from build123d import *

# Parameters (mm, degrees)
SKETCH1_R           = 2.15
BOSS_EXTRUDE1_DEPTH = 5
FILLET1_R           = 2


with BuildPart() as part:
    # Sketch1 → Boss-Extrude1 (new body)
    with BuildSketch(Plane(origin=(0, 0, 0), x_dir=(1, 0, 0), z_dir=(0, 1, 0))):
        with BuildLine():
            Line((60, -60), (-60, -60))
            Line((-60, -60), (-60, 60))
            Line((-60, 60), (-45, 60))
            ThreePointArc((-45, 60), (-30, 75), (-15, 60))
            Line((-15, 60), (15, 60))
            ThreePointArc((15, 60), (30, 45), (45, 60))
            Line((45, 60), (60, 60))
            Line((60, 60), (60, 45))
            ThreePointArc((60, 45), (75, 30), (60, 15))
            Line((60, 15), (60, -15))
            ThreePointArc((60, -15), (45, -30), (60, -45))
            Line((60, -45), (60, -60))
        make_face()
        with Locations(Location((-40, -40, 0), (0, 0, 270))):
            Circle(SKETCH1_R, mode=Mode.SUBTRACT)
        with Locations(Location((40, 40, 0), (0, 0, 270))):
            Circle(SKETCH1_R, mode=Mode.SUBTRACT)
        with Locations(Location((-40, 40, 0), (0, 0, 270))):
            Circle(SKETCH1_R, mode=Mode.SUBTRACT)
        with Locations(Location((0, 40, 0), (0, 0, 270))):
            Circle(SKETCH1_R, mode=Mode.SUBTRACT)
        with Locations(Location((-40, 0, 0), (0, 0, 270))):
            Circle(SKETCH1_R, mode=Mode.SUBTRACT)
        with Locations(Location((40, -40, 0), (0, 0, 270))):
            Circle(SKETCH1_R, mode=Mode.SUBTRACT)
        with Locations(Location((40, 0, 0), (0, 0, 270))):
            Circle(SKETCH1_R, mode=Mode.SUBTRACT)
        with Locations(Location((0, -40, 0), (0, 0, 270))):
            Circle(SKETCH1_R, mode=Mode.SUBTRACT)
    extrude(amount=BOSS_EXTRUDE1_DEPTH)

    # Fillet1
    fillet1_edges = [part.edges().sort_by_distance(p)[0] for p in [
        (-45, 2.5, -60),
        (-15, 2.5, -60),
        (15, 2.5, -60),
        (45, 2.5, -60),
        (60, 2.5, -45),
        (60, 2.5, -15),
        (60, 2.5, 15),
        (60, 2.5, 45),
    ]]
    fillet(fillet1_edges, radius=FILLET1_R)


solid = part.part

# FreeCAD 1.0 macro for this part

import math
import FreeCAD as App
import Part
import Sketcher

V = App.Vector


def edges_at(feature, points):
    """Names of the edges that pass closest to the given points."""
    edges = feature.Shape.Edges
    near = lambda p: min(range(len(edges)), key=lambda i: edges[i].distToShape(Part.Vertex(*p))[0])
    return sorted({f"Edge{near(p) + 1}" for p in points})

doc = App.newDocument("Part")
body = doc.addObject("PartDesign::Body", "Body")

# Sketch on XZ plane
sketch1 = body.newObject("Sketcher::SketchObject", "Sketch")
sketch1.AttachmentSupport = (doc.getObject("XZ_Plane"), [""])
sketch1.MapMode = "FlatFace"
sketch1.addGeometry(Part.LineSegment(V(-60, 60, 0), V(60, 60, 0)), False)
sketch1.addGeometry(Part.LineSegment(V(60, 60, 0), V(60, 45, 0)), False)
sketch1.addGeometry(Part.ArcOfCircle(Part.Circle(V(60, 30, 0), V(0, 0, 1), 15), math.radians(90), math.radians(270)), False)
sketch1.addGeometry(Part.LineSegment(V(60, 15, 0), V(60, -15, 0)), False)
sketch1.addGeometry(Part.ArcOfCircle(Part.Circle(V(60, -30, 0), V(0, 0, 1), 15), math.radians(-90), math.radians(90)), False)
sketch1.addGeometry(Part.LineSegment(V(60, -45, 0), V(60, -60, 0)), False)
sketch1.addGeometry(Part.LineSegment(V(60, -60, 0), V(45, -60, 0)), False)
sketch1.addGeometry(Part.ArcOfCircle(Part.Circle(V(30, -60, 0), V(0, 0, 1), 15), math.radians(0), math.radians(180)), False)
sketch1.addGeometry(Part.LineSegment(V(15, -60, 0), V(-15, -60, 0)), False)
sketch1.addGeometry(Part.ArcOfCircle(Part.Circle(V(-30, -60, 0), V(0, 0, 1), 15), math.radians(180), math.radians(360)), False)
sketch1.addGeometry(Part.LineSegment(V(-45, -60, 0), V(-60, -60, 0)), False)
sketch1.addGeometry(Part.LineSegment(V(-60, -60, 0), V(-60, 60, 0)), False)
sketch1.addGeometry(Part.Circle(V(40, 40, 0), V(0, 0, 1), 2.1), False)
sketch1.addGeometry(Part.Circle(V(0, 40, 0), V(0, 0, 1), 2.1), False)
sketch1.addGeometry(Part.Circle(V(-40, 40, 0), V(0, 0, 1), 2.1), False)
sketch1.addGeometry(Part.Circle(V(40, 0, 0), V(0, 0, 1), 2.1), False)
sketch1.addGeometry(Part.Circle(V(40, -40, 0), V(0, 0, 1), 2.1), False)
sketch1.addGeometry(Part.Circle(V(-40, 0, 0), V(0, 0, 1), 2.1), False)
sketch1.addGeometry(Part.Circle(V(0, -40, 0), V(0, 0, 1), 2.1), False)
sketch1.addGeometry(Part.Circle(V(-40, -40, 0), V(0, 0, 1), 2.1), False)
sketch1.addConstraint(Sketcher.Constraint("Coincident", 0, 2, 1, 1))
sketch1.addConstraint(Sketcher.Constraint("Coincident", 1, 2, 2, 1))
sketch1.addConstraint(Sketcher.Constraint("Coincident", 2, 2, 3, 1))
sketch1.addConstraint(Sketcher.Constraint("Coincident", 3, 2, 4, 2))
sketch1.addConstraint(Sketcher.Constraint("Coincident", 4, 1, 5, 1))
sketch1.addConstraint(Sketcher.Constraint("Coincident", 5, 2, 6, 1))
sketch1.addConstraint(Sketcher.Constraint("Coincident", 6, 2, 7, 1))
sketch1.addConstraint(Sketcher.Constraint("Coincident", 7, 2, 8, 1))
sketch1.addConstraint(Sketcher.Constraint("Coincident", 8, 2, 9, 2))
sketch1.addConstraint(Sketcher.Constraint("Coincident", 9, 1, 10, 1))
sketch1.addConstraint(Sketcher.Constraint("Coincident", 10, 2, 11, 1))
sketch1.addConstraint(Sketcher.Constraint("Coincident", 11, 2, 0, 1))
sketch1.addConstraint(Sketcher.Constraint("Horizontal", 0))
sketch1.addConstraint(Sketcher.Constraint("Vertical", 1))
sketch1.addConstraint(Sketcher.Constraint("Vertical", 3))
sketch1.addConstraint(Sketcher.Constraint("Vertical", 5))
sketch1.addConstraint(Sketcher.Constraint("Horizontal", 6))
sketch1.addConstraint(Sketcher.Constraint("Horizontal", 8))
sketch1.addConstraint(Sketcher.Constraint("Horizontal", 10))
sketch1.addConstraint(Sketcher.Constraint("Vertical", 11))
sketch1.addConstraint(Sketcher.Constraint("Equal", 2, 4))
sketch1.addConstraint(Sketcher.Constraint("Equal", 4, 7))
sketch1.addConstraint(Sketcher.Constraint("Equal", 7, 9))
sketch1.addConstraint(Sketcher.Constraint("Equal", 12, 13))
sketch1.addConstraint(Sketcher.Constraint("Equal", 13, 14))
sketch1.addConstraint(Sketcher.Constraint("Equal", 14, 15))
sketch1.addConstraint(Sketcher.Constraint("Equal", 15, 16))
sketch1.addConstraint(Sketcher.Constraint("Equal", 16, 17))
sketch1.addConstraint(Sketcher.Constraint("Equal", 17, 18))
sketch1.addConstraint(Sketcher.Constraint("Equal", 18, 19))
sketch1.addConstraint(Sketcher.Constraint("Symmetric", 14, 3, 16, 3, -1, 1))
sketch1.addConstraint(Sketcher.Constraint("Symmetric", 15, 3, 17, 3, -1, 1))
sketch1.addConstraint(Sketcher.Constraint("Symmetric", 13, 3, 18, 3, -1, 1))
sketch1.addConstraint(Sketcher.Constraint("Symmetric", 12, 3, 19, 3, -1, 1))
sketch1.addConstraint(Sketcher.Constraint("Symmetric", 0, 2, 10, 2, -1, 1))
sketch1.addConstraint(Sketcher.Constraint("Symmetric", 5, 2, 11, 2, -1, 1))
sketch1.addConstraint(Sketcher.Constraint("Symmetric", 7, 3, 9, 3, -2))
sketch1.addConstraint(Sketcher.Constraint("Symmetric", 12, 3, 14, 3, -2))
sketch1.addConstraint(Sketcher.Constraint("Symmetric", 2, 3, 4, 3, -1))
sketch1.addConstraint(Sketcher.Constraint("PointOnObject", 13, 3, -2))
sketch1.addConstraint(Sketcher.Constraint("PointOnObject", 15, 3, -1))
sketch1.addConstraint(Sketcher.Constraint("Horizontal", 12, 3, 13, 3))
sketch1.addConstraint(Sketcher.Constraint("Horizontal", 9, 3, 5, 2))
sketch1.addConstraint(Sketcher.Constraint("Horizontal", 6, 2, 7, 2))
sketch1.addConstraint(Sketcher.Constraint("Vertical", 12, 3, 15, 3))
sketch1.addConstraint(Sketcher.Constraint("Vertical", 4, 3, 0, 2))
sketch1.addConstraint(Sketcher.Constraint("Vertical", 1, 2, 2, 2))
sketch1.addConstraint(Sketcher.Constraint("Equal", 10, 1))
sketch1.addConstraint(Sketcher.Constraint("Equal", 8, 3))
sketch1.addConstraint(Sketcher.Constraint("Radius", 2, 15.0))
sketch1.addConstraint(Sketcher.Constraint("Diameter", 12, 4.3))
sketch1.addConstraint(Sketcher.Constraint("DistanceX", 0, 1, 0, 2, 120.0))
sketch1.addConstraint(Sketcher.Constraint("DistanceX", 6, 2, 6, 1, 15.0))
sketch1.addConstraint(Sketcher.Constraint("DistanceX", -1, 1, 12, 3, 40.0))
sketch1.addConstraint(Sketcher.Constraint("DistanceY", -1, 1, 12, 3, 40.0))
pad1 = body.newObject("PartDesign::Pad", "Pad")
pad1.Profile = sketch1
pad1.Length = 5
pad1.Reversed = True
doc.recompute()

fillet = body.newObject("PartDesign::Fillet", "Fillet")
fillet.Base = (pad1, edges_at(pad1, [
    (-45, 2.5, -60),
    (-15, 2.5, -60),
    (15, 2.5, -60),
    (45, 2.5, -60),
    (60, 2.5, -45),
    (60, 2.5, -15),
    (60, 2.5, 15),
    (60, 2.5, 45),
]))
fillet.Radius = 2

doc.recompute()
